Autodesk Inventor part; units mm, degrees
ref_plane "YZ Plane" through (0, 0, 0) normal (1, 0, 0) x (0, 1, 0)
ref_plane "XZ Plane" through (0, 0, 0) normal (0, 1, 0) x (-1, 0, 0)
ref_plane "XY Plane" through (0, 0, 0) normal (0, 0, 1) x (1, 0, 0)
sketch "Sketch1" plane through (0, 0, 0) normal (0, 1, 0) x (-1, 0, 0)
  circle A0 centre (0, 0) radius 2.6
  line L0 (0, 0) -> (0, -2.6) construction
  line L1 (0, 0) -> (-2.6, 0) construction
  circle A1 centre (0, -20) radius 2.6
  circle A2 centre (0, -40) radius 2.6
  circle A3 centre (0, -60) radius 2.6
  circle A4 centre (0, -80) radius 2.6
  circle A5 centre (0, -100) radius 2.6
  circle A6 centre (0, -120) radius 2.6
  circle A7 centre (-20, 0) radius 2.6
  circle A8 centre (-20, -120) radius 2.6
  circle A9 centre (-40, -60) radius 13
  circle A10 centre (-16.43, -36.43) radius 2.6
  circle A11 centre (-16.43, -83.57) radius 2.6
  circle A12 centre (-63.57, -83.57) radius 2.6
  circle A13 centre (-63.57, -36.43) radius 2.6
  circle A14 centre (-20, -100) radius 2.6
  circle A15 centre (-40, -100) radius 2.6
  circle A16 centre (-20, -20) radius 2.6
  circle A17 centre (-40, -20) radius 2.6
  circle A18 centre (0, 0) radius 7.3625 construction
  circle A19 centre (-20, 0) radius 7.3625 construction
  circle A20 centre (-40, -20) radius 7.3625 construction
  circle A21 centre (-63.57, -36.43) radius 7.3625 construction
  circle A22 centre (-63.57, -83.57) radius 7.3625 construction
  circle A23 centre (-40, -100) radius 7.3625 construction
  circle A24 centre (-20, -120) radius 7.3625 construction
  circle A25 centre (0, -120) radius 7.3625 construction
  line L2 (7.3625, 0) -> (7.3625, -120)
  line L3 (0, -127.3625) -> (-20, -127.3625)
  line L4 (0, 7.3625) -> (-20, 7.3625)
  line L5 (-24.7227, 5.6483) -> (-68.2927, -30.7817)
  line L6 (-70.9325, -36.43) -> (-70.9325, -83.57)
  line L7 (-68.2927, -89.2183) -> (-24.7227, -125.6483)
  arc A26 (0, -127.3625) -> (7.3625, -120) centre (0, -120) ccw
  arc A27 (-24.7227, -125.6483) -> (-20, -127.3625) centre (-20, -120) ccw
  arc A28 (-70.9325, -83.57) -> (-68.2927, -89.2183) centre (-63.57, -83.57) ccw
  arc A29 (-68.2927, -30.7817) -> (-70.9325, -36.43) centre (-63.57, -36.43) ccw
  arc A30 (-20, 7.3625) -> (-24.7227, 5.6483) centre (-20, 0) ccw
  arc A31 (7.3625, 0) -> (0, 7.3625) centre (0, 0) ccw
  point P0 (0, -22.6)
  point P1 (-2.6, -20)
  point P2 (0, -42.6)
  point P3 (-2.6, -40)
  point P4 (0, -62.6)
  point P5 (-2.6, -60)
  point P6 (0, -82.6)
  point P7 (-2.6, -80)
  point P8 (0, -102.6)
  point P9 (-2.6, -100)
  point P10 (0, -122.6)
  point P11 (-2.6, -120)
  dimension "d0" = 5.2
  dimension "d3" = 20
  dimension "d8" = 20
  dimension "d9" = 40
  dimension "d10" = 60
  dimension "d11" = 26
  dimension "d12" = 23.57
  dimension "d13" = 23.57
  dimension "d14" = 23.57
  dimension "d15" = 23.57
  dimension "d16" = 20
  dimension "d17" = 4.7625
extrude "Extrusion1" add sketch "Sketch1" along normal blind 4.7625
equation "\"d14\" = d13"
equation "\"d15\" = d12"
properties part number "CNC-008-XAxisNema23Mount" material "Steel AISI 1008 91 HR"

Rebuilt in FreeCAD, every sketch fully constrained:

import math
import FreeCAD as App
import Part
import Sketcher
Q = App.Units.Quantity

doc = App.newDocument("Part")
body = doc.addObject("PartDesign::Body", "Body")

# Sketch on XZ plane
sketch1 = body.newObject("Sketcher::SketchObject", "Sketch")
sketch1.AttachmentSupport = (doc.getObject("XZ_Plane"), [""])
sketch1.MapMode = "FlatFace"
sketch1.addGeometry([
    Part.LineSegment(App.Vector(-7.4, -120, 0), App.Vector(-7.4, 0, 0)),  # 0
    Part.ArcOfCircle(Part.Circle(App.Vector(0, 0, 0), App.Vector(0, 0, 1), 7.4), math.radians(90), math.radians(180)),  # 1
    Part.LineSegment(App.Vector(0, 7.4, 0), App.Vector(20, 7.4, 0)),  # 2
    Part.ArcOfCircle(Part.Circle(App.Vector(20, 0, 0), App.Vector(0, 0, 1), 7.4), math.radians(50), math.radians(90)),  # 3
    Part.LineSegment(App.Vector(24.7, 5.6, 0), App.Vector(68.3, -30.8, 0)),  # 4
    Part.ArcOfCircle(Part.Circle(App.Vector(63.6, -36.4, 0), App.Vector(0, 0, 1), 7.4), math.radians(0), math.radians(50)),  # 5
    Part.LineSegment(App.Vector(70.9, -36.4, 0), App.Vector(70.9, -83.6, 0)),  # 6
    Part.ArcOfCircle(Part.Circle(App.Vector(63.6, -83.6, 0), App.Vector(0, 0, 1), 7.4), math.radians(-50), math.radians(0)),  # 7
    Part.LineSegment(App.Vector(68.3, -89.2, 0), App.Vector(24.7, -125.6, 0)),  # 8
    Part.ArcOfCircle(Part.Circle(App.Vector(20, -120, 0), App.Vector(0, 0, 1), 7.4), math.radians(-90), math.radians(-50)),  # 9
    Part.LineSegment(App.Vector(20, -127.4, 0), App.Vector(0, -127.4, 0)),  # 10
    Part.ArcOfCircle(Part.Circle(App.Vector(0, -120, 0), App.Vector(0, 0, 1), 7.4), math.radians(180), math.radians(270)),  # 11
    Part.Circle(App.Vector(40, -100, 0), App.Vector(0, 0, 1), 2.6),  # 12
    Part.Circle(App.Vector(63.6, -83.6, 0), App.Vector(0, 0, 1), 2.6),  # 13
    Part.Circle(App.Vector(20, -120, 0), App.Vector(0, 0, 1), 2.6),  # 14
    Part.Circle(App.Vector(20, -100, 0), App.Vector(0, 0, 1), 2.6),  # 15
    Part.Circle(App.Vector(0, -120, 0), App.Vector(0, 0, 1), 2.6),  # 16
    Part.Circle(App.Vector(0, -100, 0), App.Vector(0, 0, 1), 2.6),  # 17
    Part.Circle(App.Vector(16.4, -83.6, 0), App.Vector(0, 0, 1), 2.6),  # 18
    Part.Circle(App.Vector(0, -80, 0), App.Vector(0, 0, 1), 2.6),  # 19
    Part.Circle(App.Vector(63.6, -36.4, 0), App.Vector(0, 0, 1), 2.6),  # 20
    Part.Circle(App.Vector(40, -60, 0), App.Vector(0, 0, 1), 13),  # 21
    Part.Circle(App.Vector(40, -20, 0), App.Vector(0, 0, 1), 2.6),  # 22
    Part.Circle(App.Vector(16.4, -36.4, 0), App.Vector(0, 0, 1), 2.6),  # 23
    Part.Circle(App.Vector(0, -60, 0), App.Vector(0, 0, 1), 2.6),  # 24
    Part.Circle(App.Vector(0, -40, 0), App.Vector(0, 0, 1), 2.6),  # 25
    Part.Circle(App.Vector(20, -20, 0), App.Vector(0, 0, 1), 2.6),  # 26
    Part.Circle(App.Vector(20, 0, 0), App.Vector(0, 0, 1), 2.6),  # 27
    Part.Circle(App.Vector(0, -20, 0), App.Vector(0, 0, 1), 2.6),  # 28
    Part.Circle(App.Vector(0, 0, 0), App.Vector(0, 0, 1), 2.6),  # 29
], False)
sketch1.addConstraint([
    Sketcher.Constraint("Tangent", 0, 2, 1, 2),
    Sketcher.Constraint("Tangent", 1, 1, 2, 1),
    Sketcher.Constraint("Tangent", 2, 2, 3, 2),
    Sketcher.Constraint("Tangent", 3, 1, 4, 1),
    Sketcher.Constraint("Tangent", 4, 2, 5, 2),
    Sketcher.Constraint("Tangent", 5, 1, 6, 1),
    Sketcher.Constraint("Tangent", 6, 2, 7, 2),
    Sketcher.Constraint("Tangent", 7, 1, 8, 1),
    Sketcher.Constraint("Tangent", 8, 2, 9, 2),
    Sketcher.Constraint("Tangent", 9, 1, 10, 1),
    Sketcher.Constraint("Tangent", 10, 2, 11, 2),
    Sketcher.Constraint("Tangent", 11, 1, 0, 1),
    Sketcher.Constraint("Vertical", 0),
    Sketcher.Constraint("Horizontal", 2),
    Sketcher.Constraint("Vertical", 6),
    Sketcher.Constraint("Horizontal", 10),
    Sketcher.Constraint("Coincident", 1, 3, -1, 1),
    Sketcher.Constraint("Coincident", 29, 3, -1, 1),
    Sketcher.Constraint("Coincident", 13, 3, 7, 3),
    Sketcher.Constraint("Coincident", 14, 3, 9, 3),
    Sketcher.Constraint("Coincident", 16, 3, 11, 3),
    Sketcher.Constraint("Coincident", 20, 3, 5, 3),
    Sketcher.Constraint("Coincident", 27, 3, 3, 3),
    Sketcher.Constraint("Equal", 1, 3),
    Sketcher.Constraint("Equal", 3, 5),
    Sketcher.Constraint("Equal", 5, 7),
    Sketcher.Constraint("Equal", 7, 9),
    Sketcher.Constraint("Equal", 9, 11),
    Sketcher.Constraint("Equal", 12, 13),
    Sketcher.Constraint("Equal", 13, 14),
    Sketcher.Constraint("Equal", 14, 15),
    Sketcher.Constraint("Equal", 15, 16),
    Sketcher.Constraint("Equal", 16, 17),
    Sketcher.Constraint("Equal", 17, 18),
    Sketcher.Constraint("Equal", 18, 19),
    Sketcher.Constraint("Equal", 19, 20),
    Sketcher.Constraint("Equal", 20, 22),
    Sketcher.Constraint("Equal", 22, 23),
    Sketcher.Constraint("Equal", 23, 24),
    Sketcher.Constraint("Equal", 24, 25),
    Sketcher.Constraint("Equal", 25, 26),
    Sketcher.Constraint("Equal", 26, 27),
    Sketcher.Constraint("Equal", 27, 28),
    Sketcher.Constraint("Equal", 28, 29),
    Sketcher.Constraint("PointOnObject", 17, 3, -2),
    Sketcher.Constraint("PointOnObject", 19, 3, -2),
    Sketcher.Constraint("PointOnObject", 24, 3, -2),
    Sketcher.Constraint("PointOnObject", 25, 3, -2),
    Sketcher.Constraint("PointOnObject", 28, 3, -2),
    Sketcher.Constraint("Horizontal", 12, 3, 15, 3),
    Sketcher.Constraint("Horizontal", 15, 3, 17, 3),
    Sketcher.Constraint("Horizontal", 13, 3, 18, 3),
    Sketcher.Constraint("Horizontal", 20, 3, 23, 3),
    Sketcher.Constraint("Horizontal", 21, 3, 24, 3),
    Sketcher.Constraint("Horizontal", 22, 3, 26, 3),
    Sketcher.Constraint("Horizontal", 26, 3, 28, 3),
    Sketcher.Constraint("Vertical", 3, 3, 9, 3),
    Sketcher.Constraint("Vertical", 14, 3, 15, 3),
    Sketcher.Constraint("Vertical", 12, 3, 21, 3),
    Sketcher.Constraint("Vertical", 21, 3, 22, 3),
    Sketcher.Constraint("Vertical", 18, 3, 23, 3),
    Sketcher.Constraint("Vertical", 15, 3, 26, 3),
    Sketcher.Constraint("Vertical", 4, 2, 7, 1),
    Sketcher.Constraint("Diameter", 21, Q("26 mm")),
    Sketcher.Constraint("Diameter", 12, Q("5.2 mm")),
    Sketcher.Constraint("DistanceX", 2, 1, 2, 2, Q("20 mm")),
    Sketcher.Constraint("DistanceX", -1, 1, 12, 3, Q("40 mm")),
    Sketcher.Constraint("DistanceY", 21, 3, -1, 1, Q("60 mm")),
    Sketcher.Constraint("DistanceY", 22, 3, -1, 1, Q("20 mm")),
    Sketcher.Constraint("DistanceY", 25, 3, -1, 1, Q("40 mm")),
    Sketcher.Constraint("DistanceY", 9, 3, 12, 3, Q("20 mm")),
    Sketcher.Constraint("DistanceY", 17, 3, 19, 3, Q("20 mm")),
    Sketcher.Constraint("DistanceY", 19, 3, 24, 3, Q("20 mm")),
    Sketcher.Constraint("DistanceX", 12, 3, 7, 3, Q("23.57 mm")),
    Sketcher.Constraint("DistanceX", 18, 3, 12, 3, Q("23.57 mm")),
    Sketcher.Constraint("DistanceY", 21, 3, 5, 3, Q("23.57 mm")),
    Sketcher.Constraint("Radius", 1, Q("7.3625 mm")),
])
pad1 = body.newObject("PartDesign::Pad", "Pad")
pad1.Profile = sketch1
pad1.Length = 4.7625
pad1.Reversed = True

doc.recompute()
